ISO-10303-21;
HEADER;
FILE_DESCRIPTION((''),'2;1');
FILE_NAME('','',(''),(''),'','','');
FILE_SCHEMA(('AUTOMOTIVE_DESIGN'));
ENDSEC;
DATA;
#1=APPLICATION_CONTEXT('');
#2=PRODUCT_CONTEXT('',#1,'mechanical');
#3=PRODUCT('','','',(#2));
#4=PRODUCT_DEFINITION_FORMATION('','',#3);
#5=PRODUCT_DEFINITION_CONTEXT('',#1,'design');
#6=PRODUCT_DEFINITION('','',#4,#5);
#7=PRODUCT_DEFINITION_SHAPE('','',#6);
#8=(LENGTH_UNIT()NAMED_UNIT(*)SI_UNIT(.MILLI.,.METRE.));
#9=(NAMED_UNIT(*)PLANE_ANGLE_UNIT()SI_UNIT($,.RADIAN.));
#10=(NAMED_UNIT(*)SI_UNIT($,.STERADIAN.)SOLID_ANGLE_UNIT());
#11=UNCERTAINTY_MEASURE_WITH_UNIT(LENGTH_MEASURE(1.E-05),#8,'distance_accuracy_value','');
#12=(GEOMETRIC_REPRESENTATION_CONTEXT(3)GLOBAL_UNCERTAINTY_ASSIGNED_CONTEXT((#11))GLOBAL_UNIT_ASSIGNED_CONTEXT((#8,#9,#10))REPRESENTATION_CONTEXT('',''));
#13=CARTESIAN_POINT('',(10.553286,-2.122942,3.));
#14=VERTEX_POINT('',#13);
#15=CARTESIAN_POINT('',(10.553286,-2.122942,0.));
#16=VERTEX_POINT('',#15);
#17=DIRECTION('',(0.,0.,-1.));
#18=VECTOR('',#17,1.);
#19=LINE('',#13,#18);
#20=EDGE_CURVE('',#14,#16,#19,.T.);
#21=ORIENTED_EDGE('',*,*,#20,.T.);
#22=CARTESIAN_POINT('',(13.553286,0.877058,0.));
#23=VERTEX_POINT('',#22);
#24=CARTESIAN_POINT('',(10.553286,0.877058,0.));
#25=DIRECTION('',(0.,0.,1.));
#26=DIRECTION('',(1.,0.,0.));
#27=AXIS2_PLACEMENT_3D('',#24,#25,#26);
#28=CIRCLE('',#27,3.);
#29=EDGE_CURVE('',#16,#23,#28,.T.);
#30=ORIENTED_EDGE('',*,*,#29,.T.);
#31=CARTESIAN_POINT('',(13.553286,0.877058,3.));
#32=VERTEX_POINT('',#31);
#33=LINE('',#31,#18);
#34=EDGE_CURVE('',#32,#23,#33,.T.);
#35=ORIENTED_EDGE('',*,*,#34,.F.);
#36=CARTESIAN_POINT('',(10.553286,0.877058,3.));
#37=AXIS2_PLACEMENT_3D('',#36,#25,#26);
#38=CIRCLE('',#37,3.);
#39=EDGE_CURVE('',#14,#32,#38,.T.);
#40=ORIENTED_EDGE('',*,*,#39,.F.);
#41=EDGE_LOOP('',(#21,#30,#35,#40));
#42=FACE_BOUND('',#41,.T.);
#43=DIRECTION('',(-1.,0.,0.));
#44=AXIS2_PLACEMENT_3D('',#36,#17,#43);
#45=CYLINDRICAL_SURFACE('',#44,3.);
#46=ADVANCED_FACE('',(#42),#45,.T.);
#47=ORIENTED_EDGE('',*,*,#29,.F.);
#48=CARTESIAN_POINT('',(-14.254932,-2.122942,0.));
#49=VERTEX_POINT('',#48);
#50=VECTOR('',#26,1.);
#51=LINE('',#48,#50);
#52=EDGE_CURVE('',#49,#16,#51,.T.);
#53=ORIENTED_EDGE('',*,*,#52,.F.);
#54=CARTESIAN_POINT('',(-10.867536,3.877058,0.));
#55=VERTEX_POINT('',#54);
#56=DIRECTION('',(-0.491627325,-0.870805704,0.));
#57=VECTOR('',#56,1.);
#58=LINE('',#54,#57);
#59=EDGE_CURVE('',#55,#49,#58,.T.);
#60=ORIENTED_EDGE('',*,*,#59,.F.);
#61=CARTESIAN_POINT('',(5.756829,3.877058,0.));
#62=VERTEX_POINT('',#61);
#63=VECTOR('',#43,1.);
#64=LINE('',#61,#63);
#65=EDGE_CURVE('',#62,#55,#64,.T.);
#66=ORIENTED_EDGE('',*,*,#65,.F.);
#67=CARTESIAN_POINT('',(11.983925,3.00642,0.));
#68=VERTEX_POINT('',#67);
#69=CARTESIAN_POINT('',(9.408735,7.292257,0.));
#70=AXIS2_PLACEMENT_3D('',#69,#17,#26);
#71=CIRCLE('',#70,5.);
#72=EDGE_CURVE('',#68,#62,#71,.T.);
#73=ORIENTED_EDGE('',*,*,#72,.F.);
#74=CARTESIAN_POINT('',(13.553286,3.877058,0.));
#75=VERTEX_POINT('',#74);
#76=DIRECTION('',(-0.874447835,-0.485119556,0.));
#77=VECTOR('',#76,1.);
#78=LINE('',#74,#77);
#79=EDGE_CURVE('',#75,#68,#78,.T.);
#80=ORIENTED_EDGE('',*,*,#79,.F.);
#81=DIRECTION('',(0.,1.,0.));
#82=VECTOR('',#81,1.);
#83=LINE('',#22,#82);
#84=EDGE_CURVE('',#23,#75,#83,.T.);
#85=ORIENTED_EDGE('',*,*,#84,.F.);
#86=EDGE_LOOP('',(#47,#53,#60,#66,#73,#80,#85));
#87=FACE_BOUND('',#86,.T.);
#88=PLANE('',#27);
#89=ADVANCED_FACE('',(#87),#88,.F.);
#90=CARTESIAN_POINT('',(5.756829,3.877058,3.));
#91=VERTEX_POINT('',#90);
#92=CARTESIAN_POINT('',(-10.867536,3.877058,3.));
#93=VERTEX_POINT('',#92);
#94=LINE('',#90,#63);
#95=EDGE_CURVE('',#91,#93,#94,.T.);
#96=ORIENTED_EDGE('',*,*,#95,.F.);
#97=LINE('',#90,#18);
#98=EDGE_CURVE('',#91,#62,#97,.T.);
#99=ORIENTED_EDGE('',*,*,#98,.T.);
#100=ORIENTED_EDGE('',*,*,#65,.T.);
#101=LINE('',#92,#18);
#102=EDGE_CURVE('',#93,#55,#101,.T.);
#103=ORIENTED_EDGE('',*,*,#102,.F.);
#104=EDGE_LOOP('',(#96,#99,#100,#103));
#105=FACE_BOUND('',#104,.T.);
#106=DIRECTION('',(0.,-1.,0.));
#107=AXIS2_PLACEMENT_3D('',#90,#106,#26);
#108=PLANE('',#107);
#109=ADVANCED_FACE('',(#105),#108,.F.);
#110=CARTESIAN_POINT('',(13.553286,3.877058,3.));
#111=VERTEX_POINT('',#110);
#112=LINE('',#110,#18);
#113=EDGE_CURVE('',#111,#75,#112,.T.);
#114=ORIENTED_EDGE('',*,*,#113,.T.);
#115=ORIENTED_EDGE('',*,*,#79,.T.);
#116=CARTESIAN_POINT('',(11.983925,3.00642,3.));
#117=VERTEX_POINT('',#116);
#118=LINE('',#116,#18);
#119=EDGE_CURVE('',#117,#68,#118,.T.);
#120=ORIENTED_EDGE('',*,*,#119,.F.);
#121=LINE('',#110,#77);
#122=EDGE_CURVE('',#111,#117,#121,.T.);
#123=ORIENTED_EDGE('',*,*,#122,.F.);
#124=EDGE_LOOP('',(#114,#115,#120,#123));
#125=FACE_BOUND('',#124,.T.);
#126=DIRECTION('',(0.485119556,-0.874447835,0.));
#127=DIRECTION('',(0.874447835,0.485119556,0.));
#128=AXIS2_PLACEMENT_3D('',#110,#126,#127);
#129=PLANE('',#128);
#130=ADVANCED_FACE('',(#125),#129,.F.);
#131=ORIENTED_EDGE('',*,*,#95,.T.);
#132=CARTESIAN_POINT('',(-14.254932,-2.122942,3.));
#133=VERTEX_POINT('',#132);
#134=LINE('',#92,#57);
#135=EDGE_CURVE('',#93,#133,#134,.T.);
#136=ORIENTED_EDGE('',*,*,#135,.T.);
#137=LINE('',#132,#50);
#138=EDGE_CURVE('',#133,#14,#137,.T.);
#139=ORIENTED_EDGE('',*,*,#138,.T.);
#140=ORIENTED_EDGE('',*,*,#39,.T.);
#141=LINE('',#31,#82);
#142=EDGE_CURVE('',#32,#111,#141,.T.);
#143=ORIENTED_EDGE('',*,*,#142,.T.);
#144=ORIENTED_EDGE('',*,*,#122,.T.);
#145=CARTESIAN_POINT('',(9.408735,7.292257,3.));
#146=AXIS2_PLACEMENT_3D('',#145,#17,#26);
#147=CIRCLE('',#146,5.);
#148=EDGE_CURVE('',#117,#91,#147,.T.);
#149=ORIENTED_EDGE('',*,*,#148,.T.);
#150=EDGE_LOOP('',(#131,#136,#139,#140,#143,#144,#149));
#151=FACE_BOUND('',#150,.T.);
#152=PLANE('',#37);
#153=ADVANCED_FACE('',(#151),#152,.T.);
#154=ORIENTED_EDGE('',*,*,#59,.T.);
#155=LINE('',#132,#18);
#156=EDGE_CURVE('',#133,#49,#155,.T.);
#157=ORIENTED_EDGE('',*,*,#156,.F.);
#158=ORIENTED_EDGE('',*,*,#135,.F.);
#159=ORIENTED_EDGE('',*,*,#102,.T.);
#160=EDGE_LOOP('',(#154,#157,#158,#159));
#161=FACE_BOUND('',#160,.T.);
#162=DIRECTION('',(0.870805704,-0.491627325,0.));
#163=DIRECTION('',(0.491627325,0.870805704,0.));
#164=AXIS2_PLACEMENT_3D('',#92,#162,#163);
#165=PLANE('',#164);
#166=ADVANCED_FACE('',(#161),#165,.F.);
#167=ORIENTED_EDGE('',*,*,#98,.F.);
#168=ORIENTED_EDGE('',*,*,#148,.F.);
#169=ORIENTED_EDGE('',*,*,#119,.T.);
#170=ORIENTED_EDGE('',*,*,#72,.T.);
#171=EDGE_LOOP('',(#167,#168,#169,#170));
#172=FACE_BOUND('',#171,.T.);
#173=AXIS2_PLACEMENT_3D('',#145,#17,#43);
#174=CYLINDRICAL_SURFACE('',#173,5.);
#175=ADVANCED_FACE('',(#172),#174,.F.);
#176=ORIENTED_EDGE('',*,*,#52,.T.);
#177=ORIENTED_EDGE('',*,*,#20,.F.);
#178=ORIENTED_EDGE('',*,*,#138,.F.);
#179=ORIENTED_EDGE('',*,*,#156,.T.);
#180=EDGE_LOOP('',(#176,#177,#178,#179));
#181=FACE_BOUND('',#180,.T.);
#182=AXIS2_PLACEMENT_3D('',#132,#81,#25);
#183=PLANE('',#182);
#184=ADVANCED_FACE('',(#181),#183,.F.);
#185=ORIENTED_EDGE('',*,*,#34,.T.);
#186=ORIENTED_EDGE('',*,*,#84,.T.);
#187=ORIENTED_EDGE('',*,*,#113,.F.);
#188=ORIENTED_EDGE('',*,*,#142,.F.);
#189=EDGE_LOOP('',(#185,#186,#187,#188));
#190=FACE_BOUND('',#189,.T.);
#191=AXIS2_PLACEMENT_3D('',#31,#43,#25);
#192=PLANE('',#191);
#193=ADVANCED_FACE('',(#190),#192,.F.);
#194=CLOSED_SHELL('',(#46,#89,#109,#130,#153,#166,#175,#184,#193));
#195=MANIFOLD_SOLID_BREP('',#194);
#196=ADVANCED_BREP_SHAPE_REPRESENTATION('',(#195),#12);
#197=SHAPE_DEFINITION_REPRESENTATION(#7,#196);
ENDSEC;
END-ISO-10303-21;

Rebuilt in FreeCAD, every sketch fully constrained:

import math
import FreeCAD as App
import Part
import Sketcher
Q = App.Units.Quantity

doc = App.newDocument("Part")
params = doc.addObject("Spreadsheet::Sheet", "Params")
for row, (alias, value) in enumerate([
    ("sketch1_radius", "3 mm"),
    ("sketch1_radius2", "5 mm"),
    ("sketch1_height", "3 mm"),
    ("pad1_length", "3 mm"),
], start=1):
    params.set(f"A{row}", alias)
    params.set(f"B{row}", "=" + value)
    params.setAlias(f"B{row}", alias)

body = doc.addObject("PartDesign::Body", "Body")

# Sketch on XY plane
sketch1 = body.newObject("Sketcher::SketchObject", "Sketch")
sketch1.AttachmentSupport = (doc.getObject("XY_Plane"), [""])
sketch1.MapMode = "FlatFace"
sketch1.addGeometry([
    Part.LineSegment(App.Vector(-14.3, -2.1, 0), App.Vector(10.6, -2.1, 0)),  # 0
    Part.ArcOfCircle(Part.Circle(App.Vector(10.6, 0.9, 0), App.Vector(0, 0, 1), 3), math.radians(-90), math.radians(0)),  # 1
    Part.LineSegment(App.Vector(13.6, 0.9, 0), App.Vector(13.6, 3.9, 0)),  # 2
    Part.LineSegment(App.Vector(13.6, 3.9, 0), App.Vector(12, 3, 0)),  # 3
    Part.ArcOfCircle(Part.Circle(App.Vector(9.4, 7.3, 0), App.Vector(0, 0, 1), 5), math.radians(-137), math.radians(-59)),  # 4
    Part.LineSegment(App.Vector(5.8, 3.9, 0), App.Vector(-10.9, 3.9, 0)),  # 5
    Part.LineSegment(App.Vector(-10.9, 3.9, 0), App.Vector(-14.3, -2.1, 0)),  # 6
], False)
sketch1.addConstraint([
    Sketcher.Constraint("Tangent", 0, 2, 1, 1),
    Sketcher.Constraint("Tangent", 1, 2, 2, 1),
    Sketcher.Constraint("Coincident", 2, 2, 3, 1),
    Sketcher.Constraint("Coincident", 3, 2, 4, 2),
    Sketcher.Constraint("Coincident", 4, 1, 5, 1),
    Sketcher.Constraint("Coincident", 5, 2, 6, 1),
    Sketcher.Constraint("Coincident", 6, 2, 0, 1),
    Sketcher.Constraint("Horizontal", 0),
    Sketcher.Constraint("Vertical", 2),
    Sketcher.Constraint("Horizontal", 5),
    Sketcher.Constraint("Horizontal", 2, 2, 4, 1),
    Sketcher.Constraint("Radius", 1, Q("3 mm")),
    Sketcher.Constraint("Radius", 4, Q("5 mm")),
    Sketcher.Constraint("DistanceY", 2, 1, 2, 2, Q("3 mm")),
    Sketcher.Constraint("DistanceY", 1, 3, 4, 3, Q("6.415199 mm")),
    Sketcher.Constraint("Distance", 6, Q("6.890171 mm")),
    Sketcher.Constraint("DistanceX", 0, 1, 0, 2, Q("24.808218 mm")),
    Sketcher.Constraint("DistanceX", 5, 2, 5, 1, Q("16.624365 mm")),
    Sketcher.Constraint("DistanceY", -1, 1, 1, 3, Q("0.877058 mm")),
    Sketcher.Constraint("DistanceY", -1, 1, 3, 2, Q("3.00642 mm")),
    Sketcher.Constraint("DistanceX", -1, 1, 4, 1, Q("5.756829 mm")),
])
sketch1.setExpression("Constraints[11]", "Params.sketch1_radius")
sketch1.setExpression("Constraints[12]", "Params.sketch1_radius2")
sketch1.setExpression("Constraints[13]", "Params.sketch1_height")
pad1 = body.newObject("PartDesign::Pad", "Pad")
pad1.Profile = sketch1
pad1.setExpression("Length", "Params.pad1_length")

doc.recompute()
